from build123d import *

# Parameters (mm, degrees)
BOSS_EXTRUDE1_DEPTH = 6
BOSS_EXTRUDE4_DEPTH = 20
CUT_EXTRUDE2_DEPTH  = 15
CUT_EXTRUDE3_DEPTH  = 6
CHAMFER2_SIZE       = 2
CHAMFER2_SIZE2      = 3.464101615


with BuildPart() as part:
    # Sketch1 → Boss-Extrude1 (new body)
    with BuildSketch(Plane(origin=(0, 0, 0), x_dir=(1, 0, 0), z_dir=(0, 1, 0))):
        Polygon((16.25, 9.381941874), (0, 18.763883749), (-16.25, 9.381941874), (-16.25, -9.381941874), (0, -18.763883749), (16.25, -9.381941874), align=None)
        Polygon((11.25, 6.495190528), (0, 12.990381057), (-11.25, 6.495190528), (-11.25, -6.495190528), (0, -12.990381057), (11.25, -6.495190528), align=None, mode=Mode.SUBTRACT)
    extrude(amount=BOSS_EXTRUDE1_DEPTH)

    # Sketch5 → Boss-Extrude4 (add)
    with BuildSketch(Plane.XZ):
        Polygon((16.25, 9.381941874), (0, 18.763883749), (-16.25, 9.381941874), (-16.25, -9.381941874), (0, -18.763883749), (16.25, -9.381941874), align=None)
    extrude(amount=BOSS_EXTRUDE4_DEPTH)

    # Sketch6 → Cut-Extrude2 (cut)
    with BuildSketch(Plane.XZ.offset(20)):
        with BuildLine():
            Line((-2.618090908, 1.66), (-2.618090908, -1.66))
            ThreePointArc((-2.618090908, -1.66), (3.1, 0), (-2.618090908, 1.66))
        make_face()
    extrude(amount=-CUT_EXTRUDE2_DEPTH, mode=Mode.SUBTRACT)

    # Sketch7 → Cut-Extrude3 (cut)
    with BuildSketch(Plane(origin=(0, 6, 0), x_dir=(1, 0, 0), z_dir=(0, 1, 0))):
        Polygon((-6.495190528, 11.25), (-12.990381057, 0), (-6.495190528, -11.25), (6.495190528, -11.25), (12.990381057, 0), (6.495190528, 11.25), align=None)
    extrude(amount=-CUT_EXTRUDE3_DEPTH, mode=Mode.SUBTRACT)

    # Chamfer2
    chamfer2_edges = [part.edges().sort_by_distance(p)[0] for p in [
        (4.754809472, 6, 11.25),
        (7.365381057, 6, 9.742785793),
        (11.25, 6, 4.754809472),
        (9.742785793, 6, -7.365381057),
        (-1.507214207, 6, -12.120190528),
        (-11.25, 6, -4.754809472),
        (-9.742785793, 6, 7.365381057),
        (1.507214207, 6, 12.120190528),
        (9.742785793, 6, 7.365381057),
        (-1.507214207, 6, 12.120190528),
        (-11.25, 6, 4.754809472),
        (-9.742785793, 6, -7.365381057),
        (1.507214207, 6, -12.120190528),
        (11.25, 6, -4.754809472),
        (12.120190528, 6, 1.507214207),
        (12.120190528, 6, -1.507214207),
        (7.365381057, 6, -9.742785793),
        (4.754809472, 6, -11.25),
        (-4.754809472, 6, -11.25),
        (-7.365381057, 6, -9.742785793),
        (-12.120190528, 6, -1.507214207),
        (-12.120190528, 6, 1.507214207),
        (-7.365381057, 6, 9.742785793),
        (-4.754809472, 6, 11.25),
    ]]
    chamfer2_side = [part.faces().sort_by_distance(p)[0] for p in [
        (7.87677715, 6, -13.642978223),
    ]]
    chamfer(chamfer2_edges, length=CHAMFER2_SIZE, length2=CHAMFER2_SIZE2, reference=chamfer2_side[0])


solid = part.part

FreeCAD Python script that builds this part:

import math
import FreeCAD as App
import Part
import Sketcher
Q = App.Units.Quantity


def edges_at(feature, points):
    """Names of the edges that pass closest to the given points."""
    edges = feature.Shape.Edges
    near = lambda p: min(range(len(edges)), key=lambda i: edges[i].distToShape(Part.Vertex(*p))[0])
    return sorted({f"Edge{near(p) + 1}" for p in points})

doc = App.newDocument("Part")
body = doc.addObject("PartDesign::Body", "Body")

# Sketch on XZ plane
sketch1 = body.newObject("Sketcher::SketchObject", "Sketch")
sketch1.AttachmentSupport = (doc.getObject("XZ_Plane"), [""])
sketch1.MapMode = "FlatFace"
sketch1.addGeometry(Part.LineSegment(App.Vector(16, -9, 0), App.Vector(0, -19, 0)), False)
sketch1.addGeometry(Part.LineSegment(App.Vector(0, -19, 0), App.Vector(-16, -9, 0)), False)
sketch1.addGeometry(Part.LineSegment(App.Vector(-16, -9, 0), App.Vector(-16, 9, 0)), False)
sketch1.addGeometry(Part.LineSegment(App.Vector(-16, 9, 0), App.Vector(0, 19, 0)), False)
sketch1.addGeometry(Part.LineSegment(App.Vector(0, 19, 0), App.Vector(16, 9, 0)), False)
sketch1.addGeometry(Part.LineSegment(App.Vector(16, 9, 0), App.Vector(16, -9, 0)), False)
sketch1.addGeometry(Part.LineSegment(App.Vector(0, -13, 0), App.Vector(11, -6, 0)), False)
sketch1.addGeometry(Part.LineSegment(App.Vector(11, -6, 0), App.Vector(11, 6, 0)), False)
sketch1.addGeometry(Part.LineSegment(App.Vector(11, 6, 0), App.Vector(0, 13, 0)), False)
sketch1.addGeometry(Part.LineSegment(App.Vector(0, 13, 0), App.Vector(-11, 6, 0)), False)
sketch1.addGeometry(Part.LineSegment(App.Vector(-11, 6, 0), App.Vector(-11, -6, 0)), False)
sketch1.addGeometry(Part.LineSegment(App.Vector(-11, -6, 0), App.Vector(0, -13, 0)), False)
sketch1.addConstraint(Sketcher.Constraint("Coincident", 0, 2, 1, 1))
sketch1.addConstraint(Sketcher.Constraint("Coincident", 1, 2, 2, 1))
sketch1.addConstraint(Sketcher.Constraint("Coincident", 2, 2, 3, 1))
sketch1.addConstraint(Sketcher.Constraint("Coincident", 3, 2, 4, 1))
sketch1.addConstraint(Sketcher.Constraint("Coincident", 4, 2, 5, 1))
sketch1.addConstraint(Sketcher.Constraint("Coincident", 5, 2, 0, 1))
sketch1.addConstraint(Sketcher.Constraint("Coincident", 6, 2, 7, 1))
sketch1.addConstraint(Sketcher.Constraint("Coincident", 7, 2, 8, 1))
sketch1.addConstraint(Sketcher.Constraint("Coincident", 8, 2, 9, 1))
sketch1.addConstraint(Sketcher.Constraint("Coincident", 9, 2, 10, 1))
sketch1.addConstraint(Sketcher.Constraint("Coincident", 10, 2, 11, 1))
sketch1.addConstraint(Sketcher.Constraint("Coincident", 11, 2, 6, 1))
sketch1.addConstraint(Sketcher.Constraint("Vertical", 2))
sketch1.addConstraint(Sketcher.Constraint("Vertical", 5))
sketch1.addConstraint(Sketcher.Constraint("Vertical", 7))
sketch1.addConstraint(Sketcher.Constraint("Vertical", 10))
sketch1.addConstraint(Sketcher.Constraint("Symmetric", 0, 2, 3, 2, -1, 1))
sketch1.addConstraint(Sketcher.Constraint("Symmetric", 1, 2, 4, 2, -1, 1))
sketch1.addConstraint(Sketcher.Constraint("Symmetric", 6, 2, 9, 2, -1, 1))
sketch1.addConstraint(Sketcher.Constraint("Symmetric", 8, 2, 11, 2, -1, 1))
sketch1.addConstraint(Sketcher.Constraint("PointOnObject", 0, 2, -2))
sketch1.addConstraint(Sketcher.Constraint("PointOnObject", 8, 2, -2))
sketch1.addConstraint(Sketcher.Constraint("Parallel", 0, 3))
sketch1.addConstraint(Sketcher.Constraint("Parallel", 3, 6))
sketch1.addConstraint(Sketcher.Constraint("Parallel", 4, 8))
sketch1.addConstraint(Sketcher.Constraint("Parallel", 8, 11))
sketch1.addConstraint(Sketcher.Constraint("Horizontal", 2, 2, 4, 2))
sketch1.addConstraint(Sketcher.Constraint("Angle", 0, Q("-150 deg")))
sketch1.addConstraint(Sketcher.Constraint("DistanceX", 6, 2, 5, 2, Q("5 mm")))
sketch1.addConstraint(Sketcher.Constraint("DistanceX", 2, 2, 4, 2, Q("32.5 mm")))
sketch1.addConstraint(Sketcher.Constraint("DistanceY", 7, 1, 7, 2, Q("12.990381 mm")))
sketch1.addConstraint(Sketcher.Constraint("DistanceY", 2, 1, 2, 2, Q("18.763884 mm")))
pad1 = body.newObject("PartDesign::Pad", "Pad")
pad1.Profile = sketch1
pad1.Length = 6
pad1.Reversed = True

# Sketch on XZ plane
sketch2 = body.newObject("Sketcher::SketchObject", "Sketch001")
sketch2.AttachmentSupport = (doc.getObject("XZ_Plane"), [""])
sketch2.MapMode = "FlatFace"
sketch2.addGeometry(Part.LineSegment(App.Vector(16, 9, 0), App.Vector(0, 19, 0)), False)
sketch2.addGeometry(Part.LineSegment(App.Vector(0, 19, 0), App.Vector(-16, 9, 0)), False)
sketch2.addGeometry(Part.LineSegment(App.Vector(-16, 9, 0), App.Vector(-16, -9, 0)), False)
sketch2.addGeometry(Part.LineSegment(App.Vector(-16, -9, 0), App.Vector(0, -19, 0)), False)
sketch2.addGeometry(Part.LineSegment(App.Vector(0, -19, 0), App.Vector(16, -9, 0)), False)
sketch2.addGeometry(Part.LineSegment(App.Vector(16, -9, 0), App.Vector(16, 9, 0)), False)
sketch2.addConstraint(Sketcher.Constraint("Coincident", 0, 2, 1, 1))
sketch2.addConstraint(Sketcher.Constraint("Coincident", 1, 2, 2, 1))
sketch2.addConstraint(Sketcher.Constraint("Coincident", 2, 2, 3, 1))
sketch2.addConstraint(Sketcher.Constraint("Coincident", 3, 2, 4, 1))
sketch2.addConstraint(Sketcher.Constraint("Coincident", 4, 2, 5, 1))
sketch2.addConstraint(Sketcher.Constraint("Coincident", 5, 2, 0, 1))
sketch2.addConstraint(Sketcher.Constraint("Vertical", 2))
sketch2.addConstraint(Sketcher.Constraint("Vertical", 5))
sketch2.addConstraint(Sketcher.Constraint("Symmetric", 0, 2, 3, 2, -1, 1))
sketch2.addConstraint(Sketcher.Constraint("Symmetric", 1, 2, 4, 2, -1, 1))
sketch2.addConstraint(Sketcher.Constraint("PointOnObject", 0, 2, -2))
sketch2.addConstraint(Sketcher.Constraint("Parallel", 0, 3))
sketch2.addConstraint(Sketcher.Constraint("Horizontal", 2, 2, 4, 2))
sketch2.addConstraint(Sketcher.Constraint("Angle", 0, Q("150 deg")))
sketch2.addConstraint(Sketcher.Constraint("DistanceX", 2, 2, 4, 2, Q("32.5 mm")))
sketch2.addConstraint(Sketcher.Constraint("DistanceY", 2, 2, 2, 1, Q("18.763884 mm")))
pad2 = body.newObject("PartDesign::Pad", "Pad001")
pad2.Profile = sketch2
pad2.Length = 20

# Sketch on XZ plane
sketch3 = body.newObject("Sketcher::SketchObject", "Sketch002")
sketch3.AttachmentSupport = (doc.getObject("XZ_Plane"), [""])
sketch3.MapMode = "FlatFace"
sketch3.AttachmentOffset = App.Placement(App.Vector(0, 0, 20), App.Rotation())
sketch3.addGeometry(Part.LineSegment(App.Vector(-2.6, 1.7, 0), App.Vector(-2.6, -1.7, 0)), False)
sketch3.addGeometry(Part.ArcOfCircle(Part.Circle(App.Vector(0, 0, 0), App.Vector(0, 0, 1), 3.1), math.radians(-148), math.radians(148)), False)
sketch3.addConstraint(Sketcher.Constraint("Coincident", 0, 1, 1, 2))
sketch3.addConstraint(Sketcher.Constraint("Coincident", 1, 1, 0, 2))
sketch3.addConstraint(Sketcher.Constraint("Vertical", 0))
sketch3.addConstraint(Sketcher.Constraint("Coincident", 1, 3, -1, 1))
sketch3.addConstraint(Sketcher.Constraint("Radius", 1, Q("3.1 mm")))
sketch3.addConstraint(Sketcher.Constraint("DistanceY", 0, 2, 0, 1, Q("3.32 mm")))
pocket1 = body.newObject("PartDesign::Pocket", "Pocket")
pocket1.Profile = sketch3
pocket1.Length = 15

# Sketch on XZ plane
sketch4 = body.newObject("Sketcher::SketchObject", "Sketch003")
sketch4.AttachmentSupport = (doc.getObject("XZ_Plane"), [""])
sketch4.MapMode = "FlatFace"
sketch4.AttachmentOffset = App.Placement(App.Vector(0, 0, -6), App.Rotation())
sketch4.addGeometry(Part.LineSegment(App.Vector(-6, -11, 0), App.Vector(-13, 0, 0)), False)
sketch4.addGeometry(Part.LineSegment(App.Vector(-13, 0, 0), App.Vector(-6, 11, 0)), False)
sketch4.addGeometry(Part.LineSegment(App.Vector(-6, 11, 0), App.Vector(6, 11, 0)), False)
sketch4.addGeometry(Part.LineSegment(App.Vector(6, 11, 0), App.Vector(13, 0, 0)), False)
sketch4.addGeometry(Part.LineSegment(App.Vector(13, 0, 0), App.Vector(6, -11, 0)), False)
sketch4.addGeometry(Part.LineSegment(App.Vector(6, -11, 0), App.Vector(-6, -11, 0)), False)
sketch4.addConstraint(Sketcher.Constraint("Coincident", 0, 2, 1, 1))
sketch4.addConstraint(Sketcher.Constraint("Coincident", 1, 2, 2, 1))
sketch4.addConstraint(Sketcher.Constraint("Coincident", 2, 2, 3, 1))
sketch4.addConstraint(Sketcher.Constraint("Coincident", 3, 2, 4, 1))
sketch4.addConstraint(Sketcher.Constraint("Coincident", 4, 2, 5, 1))
sketch4.addConstraint(Sketcher.Constraint("Coincident", 5, 2, 0, 1))
sketch4.addConstraint(Sketcher.Constraint("Horizontal", 2))
sketch4.addConstraint(Sketcher.Constraint("Horizontal", 5))
sketch4.addConstraint(Sketcher.Constraint("Symmetric", 0, 2, 3, 2, -1, 1))
sketch4.addConstraint(Sketcher.Constraint("Symmetric", 1, 2, 4, 2, -1, 1))
sketch4.addConstraint(Sketcher.Constraint("PointOnObject", 0, 2, -1))
sketch4.addConstraint(Sketcher.Constraint("Parallel", 0, 3))
sketch4.addConstraint(Sketcher.Constraint("Vertical", 2, 2, 4, 2))
sketch4.addConstraint(Sketcher.Constraint("Angle", 0, Q("120 deg")))
sketch4.addConstraint(Sketcher.Constraint("DistanceY", 4, 2, 2, 2, Q("22.5 mm")))
sketch4.addConstraint(Sketcher.Constraint("DistanceX", 2, 1, 2, 2, Q("12.990381 mm")))
pocket2 = body.newObject("PartDesign::Pocket", "Pocket001")
pocket2.Profile = sketch4
pocket2.Length = 6
pocket2.Reversed = True
doc.recompute()

chamfer = body.newObject("PartDesign::Chamfer", "Chamfer")
chamfer.Base = (pocket2, edges_at(pocket2, [
    (4.755, 6, 11.25),
    (7.365, 6, 9.743),
    (11.25, 6, 4.755),
    (9.743, 6, -7.365),
    (-1.507, 6, -12.12),
    (-11.25, 6, -4.755),
    (-9.743, 6, 7.365),
    (1.507, 6, 12.12),
    (9.743, 6, 7.365),
    (-1.507, 6, 12.12),
    (-11.25, 6, 4.755),
    (-9.743, 6, -7.365),
    (1.507, 6, -12.12),
    (11.25, 6, -4.755),
    (12.12, 6, 1.507),
    (12.12, 6, -1.507),
    (7.365, 6, -9.743),
    (4.755, 6, -11.25),
    (-4.755, 6, -11.25),
    (-7.365, 6, -9.743),
    (-12.12, 6, -1.507),
    (-12.12, 6, 1.507),
    (-7.365, 6, 9.743),
    (-4.755, 6, 11.25),
]))
chamfer.ChamferType = "Two distances"
chamfer.Size = 2
chamfer.Size2 = 3.464102

doc.recompute()
